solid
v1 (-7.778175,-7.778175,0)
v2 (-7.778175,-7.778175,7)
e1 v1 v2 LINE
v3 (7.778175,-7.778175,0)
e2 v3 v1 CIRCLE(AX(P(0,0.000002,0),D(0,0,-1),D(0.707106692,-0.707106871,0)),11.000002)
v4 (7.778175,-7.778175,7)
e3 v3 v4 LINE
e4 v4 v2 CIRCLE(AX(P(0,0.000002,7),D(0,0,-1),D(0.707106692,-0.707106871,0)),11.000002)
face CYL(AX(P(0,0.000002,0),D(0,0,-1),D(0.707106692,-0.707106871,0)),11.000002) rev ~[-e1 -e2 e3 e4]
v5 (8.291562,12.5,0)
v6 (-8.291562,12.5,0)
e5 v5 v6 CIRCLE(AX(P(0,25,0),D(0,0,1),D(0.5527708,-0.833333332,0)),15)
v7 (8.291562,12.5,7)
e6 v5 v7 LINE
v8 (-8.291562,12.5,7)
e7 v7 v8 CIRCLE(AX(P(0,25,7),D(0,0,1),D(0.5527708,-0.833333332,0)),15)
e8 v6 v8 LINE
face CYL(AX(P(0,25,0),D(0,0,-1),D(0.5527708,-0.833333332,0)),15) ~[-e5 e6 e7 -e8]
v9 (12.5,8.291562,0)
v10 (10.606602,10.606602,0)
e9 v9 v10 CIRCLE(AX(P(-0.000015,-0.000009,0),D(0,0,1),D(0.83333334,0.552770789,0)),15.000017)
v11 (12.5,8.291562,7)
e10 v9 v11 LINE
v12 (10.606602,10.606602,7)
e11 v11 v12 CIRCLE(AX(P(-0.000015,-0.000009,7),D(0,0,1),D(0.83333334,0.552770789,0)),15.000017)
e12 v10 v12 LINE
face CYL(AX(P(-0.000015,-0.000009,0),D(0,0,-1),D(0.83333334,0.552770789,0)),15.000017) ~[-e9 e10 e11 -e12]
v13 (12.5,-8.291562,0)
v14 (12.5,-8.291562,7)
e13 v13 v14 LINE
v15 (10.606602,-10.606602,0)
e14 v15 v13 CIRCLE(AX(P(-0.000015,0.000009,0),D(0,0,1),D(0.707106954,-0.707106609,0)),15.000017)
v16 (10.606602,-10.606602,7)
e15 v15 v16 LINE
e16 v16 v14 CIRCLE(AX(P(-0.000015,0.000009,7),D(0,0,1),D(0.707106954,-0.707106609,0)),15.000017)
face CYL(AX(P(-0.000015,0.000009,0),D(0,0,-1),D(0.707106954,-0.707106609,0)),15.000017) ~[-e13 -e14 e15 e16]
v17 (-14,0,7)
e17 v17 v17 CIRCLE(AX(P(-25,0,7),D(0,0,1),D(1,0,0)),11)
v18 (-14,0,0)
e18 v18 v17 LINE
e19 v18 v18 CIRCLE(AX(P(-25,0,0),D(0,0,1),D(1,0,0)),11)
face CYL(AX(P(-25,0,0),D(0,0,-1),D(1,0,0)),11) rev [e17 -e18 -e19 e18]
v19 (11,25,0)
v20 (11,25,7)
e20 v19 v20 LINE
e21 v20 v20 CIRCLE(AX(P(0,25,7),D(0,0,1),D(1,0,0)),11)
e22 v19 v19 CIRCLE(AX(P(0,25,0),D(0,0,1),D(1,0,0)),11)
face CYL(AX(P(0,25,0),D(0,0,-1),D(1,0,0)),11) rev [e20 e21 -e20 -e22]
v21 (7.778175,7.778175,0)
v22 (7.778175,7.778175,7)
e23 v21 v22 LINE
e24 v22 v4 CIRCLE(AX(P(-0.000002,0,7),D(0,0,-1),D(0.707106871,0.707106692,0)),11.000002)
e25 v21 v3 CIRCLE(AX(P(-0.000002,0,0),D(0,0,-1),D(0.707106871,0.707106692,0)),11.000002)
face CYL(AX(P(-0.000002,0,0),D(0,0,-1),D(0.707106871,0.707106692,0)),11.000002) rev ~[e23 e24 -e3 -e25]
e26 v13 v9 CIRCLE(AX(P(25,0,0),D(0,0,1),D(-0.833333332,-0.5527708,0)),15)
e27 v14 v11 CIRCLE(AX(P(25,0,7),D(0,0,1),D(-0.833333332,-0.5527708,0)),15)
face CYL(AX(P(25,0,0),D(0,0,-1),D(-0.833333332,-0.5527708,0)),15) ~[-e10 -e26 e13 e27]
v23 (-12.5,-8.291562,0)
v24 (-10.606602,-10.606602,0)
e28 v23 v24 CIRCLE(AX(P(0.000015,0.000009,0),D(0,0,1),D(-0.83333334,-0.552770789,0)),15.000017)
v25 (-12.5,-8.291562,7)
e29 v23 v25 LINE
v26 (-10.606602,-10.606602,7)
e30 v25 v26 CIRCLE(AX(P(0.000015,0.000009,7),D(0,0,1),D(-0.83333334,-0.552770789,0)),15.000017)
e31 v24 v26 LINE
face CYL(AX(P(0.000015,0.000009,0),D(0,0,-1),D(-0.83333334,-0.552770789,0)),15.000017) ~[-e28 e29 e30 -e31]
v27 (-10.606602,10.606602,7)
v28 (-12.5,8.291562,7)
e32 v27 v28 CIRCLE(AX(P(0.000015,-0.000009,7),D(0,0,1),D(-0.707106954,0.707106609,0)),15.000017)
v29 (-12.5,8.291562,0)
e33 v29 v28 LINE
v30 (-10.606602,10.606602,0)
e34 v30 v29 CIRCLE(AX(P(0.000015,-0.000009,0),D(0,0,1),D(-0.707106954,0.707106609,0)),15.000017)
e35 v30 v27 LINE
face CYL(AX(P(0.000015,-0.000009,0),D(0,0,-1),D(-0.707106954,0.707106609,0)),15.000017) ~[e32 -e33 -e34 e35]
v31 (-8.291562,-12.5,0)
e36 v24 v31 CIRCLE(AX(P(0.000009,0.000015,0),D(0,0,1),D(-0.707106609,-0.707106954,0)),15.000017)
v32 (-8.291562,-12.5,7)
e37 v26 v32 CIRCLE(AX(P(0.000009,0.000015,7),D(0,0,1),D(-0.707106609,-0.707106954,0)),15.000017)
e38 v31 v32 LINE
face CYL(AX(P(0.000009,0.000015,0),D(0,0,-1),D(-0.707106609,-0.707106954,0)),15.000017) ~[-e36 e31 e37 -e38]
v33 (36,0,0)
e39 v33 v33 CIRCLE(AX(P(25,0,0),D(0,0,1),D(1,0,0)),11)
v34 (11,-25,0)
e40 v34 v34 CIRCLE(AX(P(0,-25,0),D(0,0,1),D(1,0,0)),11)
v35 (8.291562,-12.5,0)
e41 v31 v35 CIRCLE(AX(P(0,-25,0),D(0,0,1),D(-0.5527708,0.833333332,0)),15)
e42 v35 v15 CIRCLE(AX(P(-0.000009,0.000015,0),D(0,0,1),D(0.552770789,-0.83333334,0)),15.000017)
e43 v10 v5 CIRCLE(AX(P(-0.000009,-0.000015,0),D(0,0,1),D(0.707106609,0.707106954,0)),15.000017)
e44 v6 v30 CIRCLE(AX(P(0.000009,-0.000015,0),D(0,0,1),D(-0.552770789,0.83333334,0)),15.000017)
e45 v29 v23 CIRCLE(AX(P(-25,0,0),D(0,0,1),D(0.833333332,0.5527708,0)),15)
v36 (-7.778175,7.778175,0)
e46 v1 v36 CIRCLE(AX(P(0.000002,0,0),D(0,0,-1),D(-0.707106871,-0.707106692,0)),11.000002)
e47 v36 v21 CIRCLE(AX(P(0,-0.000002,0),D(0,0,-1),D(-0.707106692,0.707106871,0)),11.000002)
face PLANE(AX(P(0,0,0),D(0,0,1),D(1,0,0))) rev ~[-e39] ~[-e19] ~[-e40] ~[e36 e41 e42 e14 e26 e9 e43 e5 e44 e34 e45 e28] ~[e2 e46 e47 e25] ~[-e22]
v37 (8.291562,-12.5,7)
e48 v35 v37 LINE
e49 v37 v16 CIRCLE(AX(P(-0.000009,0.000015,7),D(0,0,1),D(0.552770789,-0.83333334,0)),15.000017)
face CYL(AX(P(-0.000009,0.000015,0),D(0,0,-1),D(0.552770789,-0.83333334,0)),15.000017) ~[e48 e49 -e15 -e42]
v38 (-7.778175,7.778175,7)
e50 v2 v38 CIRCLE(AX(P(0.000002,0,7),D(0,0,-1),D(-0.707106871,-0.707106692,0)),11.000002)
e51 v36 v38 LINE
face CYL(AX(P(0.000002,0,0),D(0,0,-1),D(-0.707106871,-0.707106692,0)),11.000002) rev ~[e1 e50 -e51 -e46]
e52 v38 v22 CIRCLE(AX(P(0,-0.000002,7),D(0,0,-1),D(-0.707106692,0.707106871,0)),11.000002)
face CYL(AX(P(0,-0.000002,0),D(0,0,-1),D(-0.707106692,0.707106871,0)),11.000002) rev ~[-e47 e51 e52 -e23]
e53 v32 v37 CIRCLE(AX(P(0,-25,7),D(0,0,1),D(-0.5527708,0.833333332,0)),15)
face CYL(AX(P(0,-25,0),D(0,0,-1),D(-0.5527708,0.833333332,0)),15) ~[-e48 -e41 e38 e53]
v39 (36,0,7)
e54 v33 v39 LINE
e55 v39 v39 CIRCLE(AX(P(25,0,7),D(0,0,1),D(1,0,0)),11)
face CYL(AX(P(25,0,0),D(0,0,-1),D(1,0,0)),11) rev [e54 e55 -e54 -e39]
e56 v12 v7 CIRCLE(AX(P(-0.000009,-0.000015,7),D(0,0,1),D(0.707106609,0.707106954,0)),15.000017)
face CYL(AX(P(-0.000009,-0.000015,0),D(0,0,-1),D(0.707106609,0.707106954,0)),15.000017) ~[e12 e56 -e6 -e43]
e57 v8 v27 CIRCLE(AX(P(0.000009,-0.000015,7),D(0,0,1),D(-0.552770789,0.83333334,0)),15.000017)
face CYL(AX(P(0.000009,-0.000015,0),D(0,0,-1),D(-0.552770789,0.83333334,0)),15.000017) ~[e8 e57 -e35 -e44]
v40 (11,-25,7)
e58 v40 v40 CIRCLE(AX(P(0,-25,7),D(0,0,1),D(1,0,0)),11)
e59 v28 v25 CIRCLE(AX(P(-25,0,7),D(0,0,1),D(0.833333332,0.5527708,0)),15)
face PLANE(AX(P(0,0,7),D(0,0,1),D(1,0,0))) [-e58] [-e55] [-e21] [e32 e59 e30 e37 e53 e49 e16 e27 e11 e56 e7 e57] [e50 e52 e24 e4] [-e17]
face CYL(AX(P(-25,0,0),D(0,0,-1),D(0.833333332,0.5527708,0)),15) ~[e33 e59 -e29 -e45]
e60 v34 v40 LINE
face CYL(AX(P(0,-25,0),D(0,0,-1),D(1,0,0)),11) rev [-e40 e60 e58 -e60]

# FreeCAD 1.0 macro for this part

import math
import FreeCAD as App
import Part
import Sketcher
from FreeCAD import Vector
Q = App.Units.Quantity

doc = App.newDocument("Part")
body = doc.addObject("PartDesign::Body", "Body")

# Sketch on XY plane
sketch1 = body.newObject("Sketcher::SketchObject", "Sketch")
sketch1.AttachmentSupport = (doc.getObject("XY_Plane"), [""])
sketch1.MapMode = "FlatFace"
sketch1.addGeometry([
    Part.ArcOfCircle(Part.Circle(Vector(-0.000009, -0.000015, 0), Vector(0, 0, 1), 15.000017), math.radians(45.000014), math.radians(56.442691)),  # 0
    Part.ArcOfCircle(Part.Circle(Vector(0, 25, 0), Vector(0, 0, 1), 15), math.radians(-56.44269), math.radians(236.44269)),  # 1
    Part.ArcOfCircle(Part.Circle(Vector(0.000009, -0.000015, 0), Vector(0, 0, 1), 15.000017), math.radians(123.557309), math.radians(134.999986)),  # 2
    Part.ArcOfCircle(Part.Circle(Vector(0.000015, -0.000009, 0), Vector(0, 0, 1), 15.000017), math.radians(135.000014), math.radians(146.442691)),  # 3
    Part.ArcOfCircle(Part.Circle(Vector(-25, 0, 0), Vector(0, 0, 1), 15), math.radians(33.55731), math.radians(326.44269)),  # 4
    Part.ArcOfCircle(Part.Circle(Vector(0.000015, 0.000009, 0), Vector(0, 0, 1), 15.000017), math.radians(-146.442691), math.radians(-135.000014)),  # 5
    Part.ArcOfCircle(Part.Circle(Vector(0.000009, 0.000015, 0), Vector(0, 0, 1), 15.000017), math.radians(-134.999986), math.radians(-123.557309)),  # 6
    Part.ArcOfCircle(Part.Circle(Vector(0, -25, 0), Vector(0, 0, 1), 15), math.radians(123.55731), math.radians(416.44269)),  # 7
    Part.ArcOfCircle(Part.Circle(Vector(-0.000009, 0.000015, 0), Vector(0, 0, 1), 15.000017), math.radians(-56.442691), math.radians(-45.000014)),  # 8
    Part.ArcOfCircle(Part.Circle(Vector(-0.000015, 0.000009, 0), Vector(0, 0, 1), 15.000017), math.radians(-44.999986), math.radians(-33.557309)),  # 9
    Part.ArcOfCircle(Part.Circle(Vector(25, 0, 0), Vector(0, 0, 1), 15), math.radians(-146.44269), math.radians(146.44269)),  # 10
    Part.ArcOfCircle(Part.Circle(Vector(-0.000015, -0.000009, 0), Vector(0, 0, 1), 15.000017), math.radians(33.557309), math.radians(44.999986)),  # 11
    Part.Circle(Vector(0, -25, 0), Vector(0, 0, 1), 11),  # 12
    Part.Circle(Vector(-25, 0, 0), Vector(0, 0, 1), 11),  # 13
    Part.ArcOfCircle(Part.Circle(Vector(0.000002, 0, 0), Vector(0, 0, 1), 11.000002), math.radians(135.000007), math.radians(224.999993)),  # 14
    Part.ArcOfCircle(Part.Circle(Vector(0, -0.000002, 0), Vector(0, 0, 1), 11.000002), math.radians(45.000007), math.radians(134.999993)),  # 15
    Part.ArcOfCircle(Part.Circle(Vector(-0.000002, 0, 0), Vector(0, 0, 1), 11.000002), math.radians(-44.999993), math.radians(44.999993)),  # 16
    Part.ArcOfCircle(Part.Circle(Vector(0, 0.000002, 0), Vector(0, 0, 1), 11.000002), math.radians(-134.999993), math.radians(-45.000007)),  # 17
    Part.Circle(Vector(25, 0, 0), Vector(0, 0, 1), 11),  # 18
    Part.Circle(Vector(0, 25, 0), Vector(0, 0, 1), 11),  # 19
], False)
sketch1.addConstraint([
    Sketcher.Constraint("Coincident", 0, 2, 1, 1),
    Sketcher.Constraint("Coincident", 1, 2, 2, 1),
    Sketcher.Constraint("Tangent", 2, 2, 3, 1),
    Sketcher.Constraint("Coincident", 3, 2, 4, 1),
    Sketcher.Constraint("Coincident", 4, 2, 5, 1),
    Sketcher.Constraint("Tangent", 5, 2, 6, 1),
    Sketcher.Constraint("Coincident", 6, 2, 7, 1),
    Sketcher.Constraint("Coincident", 7, 2, 8, 1),
    Sketcher.Constraint("Tangent", 8, 2, 9, 1),
    Sketcher.Constraint("Coincident", 9, 2, 10, 1),
    Sketcher.Constraint("Coincident", 10, 2, 11, 1),
    Sketcher.Constraint("Tangent", 11, 2, 0, 1),
    Sketcher.Constraint("Tangent", 14, 1, 15, 2),
    Sketcher.Constraint("Tangent", 15, 1, 16, 2),
    Sketcher.Constraint("Tangent", 16, 1, 17, 2),
    Sketcher.Constraint("Tangent", 17, 1, 14, 2),
    Sketcher.Constraint("Coincident", 14, 3, -1, 1),
    Sketcher.Constraint("Coincident", 12, 3, 7, 3),
    Sketcher.Constraint("Coincident", 13, 3, 4, 3),
    Sketcher.Constraint("Coincident", 18, 3, 10, 3),
    Sketcher.Constraint("Coincident", 19, 3, 1, 3),
    Sketcher.Constraint("Equal", 0, 2),
    Sketcher.Constraint("Equal", 2, 3),
    Sketcher.Constraint("Equal", 1, 4),
    Sketcher.Constraint("Equal", 3, 5),
    Sketcher.Constraint("Equal", 5, 6),
    Sketcher.Constraint("Equal", 4, 7),
    Sketcher.Constraint("Equal", 6, 8),
    Sketcher.Constraint("Equal", 8, 9),
    Sketcher.Constraint("Equal", 7, 10),
    Sketcher.Constraint("Equal", 9, 11),
    Sketcher.Constraint("Equal", 12, 13),
    Sketcher.Constraint("Equal", 13, 14),
    Sketcher.Constraint("Equal", 14, 15),
    Sketcher.Constraint("Equal", 17, 18),
    Sketcher.Constraint("Equal", 18, 19),
    Sketcher.Constraint("Symmetric", 0, 3, 5, 3, -1, 1),
    Sketcher.Constraint("Symmetric", 1, 3, 7, 3, -1, 1),
    Sketcher.Constraint("Symmetric", 2, 3, 8, 3, -1, 1),
    Sketcher.Constraint("Symmetric", 4, 3, 10, 3, -1, 1),
    Sketcher.Constraint("Symmetric", 0, 3, 2, 3, -2),
    Sketcher.Constraint("PointOnObject", 1, 3, -2),
    Sketcher.Constraint("PointOnObject", 4, 3, -1),
    Sketcher.Constraint("Horizontal", 5, 2, 8, 2),
    Sketcher.Constraint("Horizontal", 2, 2, 11, 2),
    Sketcher.Constraint("Horizontal", 14, 1, 15, 1),
    Sketcher.Constraint("Horizontal", 16, 1, 17, 1),
    Sketcher.Constraint("Vertical", 2, 2, 5, 2),
    Sketcher.Constraint("Vertical", 15, 1, 16, 1),
    Sketcher.Constraint("Diameter", 12, Q("22 mm")),
    Sketcher.Constraint("Radius", 1, Q("15 mm")),
    Sketcher.Constraint("DistanceY", -1, 1, 1, 3, Q("25 mm")),
    Sketcher.Constraint("DistanceX", 4, 3, -1, 1, Q("25 mm")),
    Sketcher.Constraint("DistanceY", -1, 1, 0, 2, Q("12.5 mm")),
    Sketcher.Constraint("DistanceX", 3, 2, -1, 1, Q("12.5 mm")),
    Sketcher.Constraint("Radius", 0, Q("15.000017 mm")),
    Sketcher.Constraint("DistanceY", 2, 2, 1, 2, Q("1.893398 mm")),
    Sketcher.Constraint("DistanceY", 8, 3, 14, 1, Q("7.77816 mm")),
])
pad1 = body.newObject("PartDesign::Pad", "Pad")
pad1.Profile = sketch1
pad1.Length = 7

doc.recompute()
